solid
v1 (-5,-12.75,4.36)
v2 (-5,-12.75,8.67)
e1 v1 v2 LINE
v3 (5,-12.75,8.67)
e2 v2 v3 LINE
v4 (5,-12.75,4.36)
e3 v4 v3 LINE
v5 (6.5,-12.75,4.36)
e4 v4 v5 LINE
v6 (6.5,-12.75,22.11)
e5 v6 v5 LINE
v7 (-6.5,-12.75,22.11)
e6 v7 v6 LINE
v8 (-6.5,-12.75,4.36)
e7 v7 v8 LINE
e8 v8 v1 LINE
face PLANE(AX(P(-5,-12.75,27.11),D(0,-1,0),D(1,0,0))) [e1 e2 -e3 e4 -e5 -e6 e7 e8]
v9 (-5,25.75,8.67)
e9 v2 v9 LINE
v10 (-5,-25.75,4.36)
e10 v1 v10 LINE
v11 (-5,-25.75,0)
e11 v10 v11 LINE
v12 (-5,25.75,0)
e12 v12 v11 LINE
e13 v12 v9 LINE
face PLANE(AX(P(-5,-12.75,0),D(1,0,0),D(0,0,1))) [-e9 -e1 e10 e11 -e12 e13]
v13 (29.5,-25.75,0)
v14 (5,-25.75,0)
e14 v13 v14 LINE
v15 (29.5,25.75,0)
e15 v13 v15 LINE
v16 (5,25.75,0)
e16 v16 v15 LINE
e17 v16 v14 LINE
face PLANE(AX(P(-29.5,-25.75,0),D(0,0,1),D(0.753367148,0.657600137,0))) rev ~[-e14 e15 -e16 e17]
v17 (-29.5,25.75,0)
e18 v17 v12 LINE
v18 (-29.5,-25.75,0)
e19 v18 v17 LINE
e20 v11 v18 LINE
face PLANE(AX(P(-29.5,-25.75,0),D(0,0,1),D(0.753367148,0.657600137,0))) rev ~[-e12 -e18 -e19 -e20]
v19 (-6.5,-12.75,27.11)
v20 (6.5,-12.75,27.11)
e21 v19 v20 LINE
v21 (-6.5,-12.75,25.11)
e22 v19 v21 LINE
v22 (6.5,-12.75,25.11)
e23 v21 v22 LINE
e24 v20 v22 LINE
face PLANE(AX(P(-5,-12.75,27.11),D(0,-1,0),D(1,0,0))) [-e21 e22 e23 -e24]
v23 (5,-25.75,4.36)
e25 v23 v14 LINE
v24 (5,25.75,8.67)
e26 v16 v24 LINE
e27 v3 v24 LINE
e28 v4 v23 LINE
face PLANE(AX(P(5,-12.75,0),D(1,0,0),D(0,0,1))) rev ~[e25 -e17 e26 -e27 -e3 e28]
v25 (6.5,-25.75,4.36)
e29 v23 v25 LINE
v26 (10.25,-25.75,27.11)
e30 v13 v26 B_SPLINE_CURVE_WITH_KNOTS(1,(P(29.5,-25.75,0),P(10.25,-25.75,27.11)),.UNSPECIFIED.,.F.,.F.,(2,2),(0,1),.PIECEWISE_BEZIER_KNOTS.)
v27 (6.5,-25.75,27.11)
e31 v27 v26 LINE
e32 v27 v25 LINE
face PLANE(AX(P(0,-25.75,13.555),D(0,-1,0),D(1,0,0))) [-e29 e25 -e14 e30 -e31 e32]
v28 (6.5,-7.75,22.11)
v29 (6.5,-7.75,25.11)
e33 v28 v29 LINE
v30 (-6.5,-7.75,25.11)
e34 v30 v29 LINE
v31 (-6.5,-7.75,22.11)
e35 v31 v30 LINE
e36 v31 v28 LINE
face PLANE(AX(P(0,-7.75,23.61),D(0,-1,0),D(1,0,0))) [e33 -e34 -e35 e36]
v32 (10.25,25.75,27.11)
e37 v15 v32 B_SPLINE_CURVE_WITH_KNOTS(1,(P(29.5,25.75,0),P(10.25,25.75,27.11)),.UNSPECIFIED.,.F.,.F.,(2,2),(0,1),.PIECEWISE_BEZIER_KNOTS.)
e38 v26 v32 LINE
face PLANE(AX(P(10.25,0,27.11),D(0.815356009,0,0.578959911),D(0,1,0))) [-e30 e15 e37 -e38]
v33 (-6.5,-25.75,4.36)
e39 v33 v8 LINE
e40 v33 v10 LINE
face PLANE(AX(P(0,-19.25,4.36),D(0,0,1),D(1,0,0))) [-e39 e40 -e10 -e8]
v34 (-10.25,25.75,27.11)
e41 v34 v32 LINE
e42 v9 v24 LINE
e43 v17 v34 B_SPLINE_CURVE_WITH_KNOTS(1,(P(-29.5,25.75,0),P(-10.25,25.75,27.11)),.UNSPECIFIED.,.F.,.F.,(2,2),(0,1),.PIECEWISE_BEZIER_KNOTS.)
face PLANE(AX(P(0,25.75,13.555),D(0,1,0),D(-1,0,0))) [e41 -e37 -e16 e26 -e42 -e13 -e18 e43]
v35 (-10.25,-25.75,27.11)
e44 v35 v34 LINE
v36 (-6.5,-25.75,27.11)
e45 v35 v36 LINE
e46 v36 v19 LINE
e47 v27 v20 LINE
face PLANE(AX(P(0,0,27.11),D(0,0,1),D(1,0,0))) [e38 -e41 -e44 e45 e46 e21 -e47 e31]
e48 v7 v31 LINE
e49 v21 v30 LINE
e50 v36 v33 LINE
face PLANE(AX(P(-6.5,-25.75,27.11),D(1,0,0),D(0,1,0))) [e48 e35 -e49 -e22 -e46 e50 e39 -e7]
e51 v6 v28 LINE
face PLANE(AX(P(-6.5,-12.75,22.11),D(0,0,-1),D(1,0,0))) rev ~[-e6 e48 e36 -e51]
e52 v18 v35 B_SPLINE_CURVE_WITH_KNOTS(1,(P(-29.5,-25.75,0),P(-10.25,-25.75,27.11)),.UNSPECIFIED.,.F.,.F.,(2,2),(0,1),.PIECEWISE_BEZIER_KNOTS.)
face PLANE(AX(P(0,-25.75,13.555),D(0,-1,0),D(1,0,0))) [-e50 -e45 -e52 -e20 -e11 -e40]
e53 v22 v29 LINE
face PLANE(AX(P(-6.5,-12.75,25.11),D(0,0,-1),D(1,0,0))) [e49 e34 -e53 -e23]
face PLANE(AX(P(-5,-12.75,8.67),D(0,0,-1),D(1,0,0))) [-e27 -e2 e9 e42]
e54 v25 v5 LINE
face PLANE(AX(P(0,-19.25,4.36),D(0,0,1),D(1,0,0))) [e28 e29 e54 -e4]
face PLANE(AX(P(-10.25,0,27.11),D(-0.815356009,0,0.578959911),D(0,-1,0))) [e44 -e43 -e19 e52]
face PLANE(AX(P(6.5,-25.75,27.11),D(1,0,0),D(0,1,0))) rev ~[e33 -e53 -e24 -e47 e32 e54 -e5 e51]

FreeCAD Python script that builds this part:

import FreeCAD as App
import Part
import Sketcher

V = App.Vector

doc = App.newDocument("Part")
body = doc.addObject("PartDesign::Body", "Body")

sketch1 = body.newObject("Sketcher::SketchObject", "Sketch")
sketch1.AttachmentSupport = (doc.getObject("XY_Plane"), [""])
sketch1.MapMode = "FlatFace"
sketch1.addGeometry([
    Part.LineSegment(V(-10.25, 25.75, 0), V(-10.25, -25.75, 0)),
    Part.LineSegment(V(-10.25, -25.75, 0), V(10.25, -25.75, 0)),
    Part.LineSegment(V(10.25, -25.75, 0), V(10.25, 25.75, 0)),
    Part.LineSegment(V(10.25, 25.75, 0), V(-10.25, 25.75, 0)),
], False)
sketch1.addConstraint([
    Sketcher.Constraint("Coincident", 0, 2, 1, 1),
    Sketcher.Constraint("Coincident", 1, 2, 2, 1),
    Sketcher.Constraint("Coincident", 2, 2, 3, 1),
    Sketcher.Constraint("Coincident", 3, 2, 0, 1),
    Sketcher.Constraint("Vertical", 0),
    Sketcher.Constraint("Horizontal", 1),
    Sketcher.Constraint("Vertical", 2),
    Sketcher.Constraint("Horizontal", 3),
    Sketcher.Constraint("Symmetric", 0, 2, 2, 2, -1, 1),
    Sketcher.Constraint("DistanceX", 1, 1, 1, 2, 20.5),
    Sketcher.Constraint("DistanceY", 0, 2, 0, 1, 51.5),
])
pad1 = body.newObject("PartDesign::Pad", "Pad")
pad1.Profile = sketch1
pad1.Length = 27.11

sketch2 = body.newObject("Sketcher::SketchObject", "Sketch001")
sketch2.AttachmentSupport = (doc.getObject("XY_Plane"), [""])
sketch2.MapMode = "FlatFace"
sketch2.addGeometry([
    Part.LineSegment(V(-29.5, 25.75, 0), V(-29.5, -25.75, 0)),
    Part.LineSegment(V(-29.5, -25.75, 0), V(29.5, -25.75, 0)),
    Part.LineSegment(V(29.5, -25.75, 0), V(29.5, 25.75, 0)),
    Part.LineSegment(V(29.5, 25.75, 0), V(-29.5, 25.75, 0)),
], False)
sketch2.addConstraint([
    Sketcher.Constraint("Coincident", 0, 2, 1, 1),
    Sketcher.Constraint("Coincident", 1, 2, 2, 1),
    Sketcher.Constraint("Coincident", 2, 2, 3, 1),
    Sketcher.Constraint("Coincident", 3, 2, 0, 1),
    Sketcher.Constraint("Vertical", 0),
    Sketcher.Constraint("Horizontal", 1),
    Sketcher.Constraint("Vertical", 2),
    Sketcher.Constraint("Horizontal", 3),
    Sketcher.Constraint("Symmetric", 0, 2, 2, 2, -1, 1),
    Sketcher.Constraint("DistanceX", 1, 1, 1, 2, 59.0),
    Sketcher.Constraint("DistanceY", 0, 2, 0, 1, 51.5),
])

sketch3 = body.newObject("Sketcher::SketchObject", "Sketch002")
sketch3.AttachmentSupport = (doc.getObject("XY_Plane"), [""])
sketch3.MapMode = "FlatFace"
sketch3.AttachmentOffset = App.Placement(V(0, 0, 27.11), App.Rotation())
sketch3.addGeometry([
    Part.LineSegment(V(-10.25, 25.75, 0), V(-10.25, -25.75, 0)),
    Part.LineSegment(V(-10.25, -25.75, 0), V(10.25, -25.75, 0)),
    Part.LineSegment(V(10.25, -25.75, 0), V(10.25, 25.75, 0)),
    Part.LineSegment(V(10.25, 25.75, 0), V(-10.25, 25.75, 0)),
], False)
sketch3.addConstraint([
    Sketcher.Constraint("Coincident", 0, 2, 1, 1),
    Sketcher.Constraint("Coincident", 1, 2, 2, 1),
    Sketcher.Constraint("Coincident", 2, 2, 3, 1),
    Sketcher.Constraint("Coincident", 3, 2, 0, 1),
    Sketcher.Constraint("Vertical", 0),
    Sketcher.Constraint("Horizontal", 1),
    Sketcher.Constraint("Vertical", 2),
    Sketcher.Constraint("Horizontal", 3),
    Sketcher.Constraint("Symmetric", 0, 2, 2, 2, -1, 1),
    Sketcher.Constraint("DistanceX", 1, 1, 1, 2, 20.5),
    Sketcher.Constraint("DistanceY", 0, 2, 0, 1, 51.5),
])

additiveloft = body.newObject("PartDesign::AdditiveLoft", "AdditiveLoft")
additiveloft.Profile = sketch2
additiveloft.Sections = [sketch3]

sketch4 = body.newObject("Sketcher::SketchObject", "Sketch003")
sketch4.AttachmentSupport = (doc.getObject("XY_Plane"), [""])
sketch4.MapMode = "FlatFace"
sketch4.AttachmentOffset = App.Placement(V(0, 0, 27.11), App.Rotation())
sketch4.addGeometry([
    Part.LineSegment(V(-5, -12.75, 0), V(-5, -25.75, 0)),
    Part.LineSegment(V(-5, -25.75, 0), V(5, -25.75, 0)),
    Part.LineSegment(V(5, -25.75, 0), V(5, -12.75, 0)),
    Part.LineSegment(V(5, -12.75, 0), V(-5, -12.75, 0)),
], False)
sketch4.addConstraint([
    Sketcher.Constraint("Coincident", 0, 2, 1, 1),
    Sketcher.Constraint("Coincident", 1, 2, 2, 1),
    Sketcher.Constraint("Coincident", 2, 2, 3, 1),
    Sketcher.Constraint("Coincident", 3, 2, 0, 1),
    Sketcher.Constraint("Vertical", 0),
    Sketcher.Constraint("Horizontal", 1),
    Sketcher.Constraint("Vertical", 2),
    Sketcher.Constraint("Horizontal", 3),
    Sketcher.Constraint("DistanceX", 1, 1, 1, 2, 10.0),
    Sketcher.Constraint("DistanceY", 0, 2, 0, 1, 13.0),
    Sketcher.Constraint("DistanceX", 0, 2, -1, 1, 5.0),
    Sketcher.Constraint("DistanceY", 0, 2, -1, 1, 25.75),
])
pocket1 = body.newObject("PartDesign::Pocket", "Pocket")
pocket1.Profile = sketch4
pocket1.Type = "ThroughAll"

sketch5 = body.newObject("Sketcher::SketchObject", "Sketch004")
sketch5.AttachmentSupport = (doc.getObject("XY_Plane"), [""])
sketch5.MapMode = "FlatFace"
sketch5.AttachmentOffset = App.Placement(V(0, 0, 27.11), App.Rotation())
sketch5.addGeometry([
    Part.LineSegment(V(-6.5, -12.75, 0), V(-6.5, -25.75, 0)),
    Part.LineSegment(V(-6.5, -25.75, 0), V(6.5, -25.75, 0)),
    Part.LineSegment(V(6.5, -25.75, 0), V(6.5, -12.75, 0)),
    Part.LineSegment(V(6.5, -12.75, 0), V(-6.5, -12.75, 0)),
], False)
sketch5.addConstraint([
    Sketcher.Constraint("Coincident", 0, 2, 1, 1),
    Sketcher.Constraint("Coincident", 1, 2, 2, 1),
    Sketcher.Constraint("Coincident", 2, 2, 3, 1),
    Sketcher.Constraint("Coincident", 3, 2, 0, 1),
    Sketcher.Constraint("Vertical", 0),
    Sketcher.Constraint("Horizontal", 1),
    Sketcher.Constraint("Vertical", 2),
    Sketcher.Constraint("Horizontal", 3),
    Sketcher.Constraint("Equal", 3, 0),
    Sketcher.Constraint("DistanceX", 1, 1, 1, 2, 13.0),
    Sketcher.Constraint("DistanceX", 0, 2, -1, 1, 6.5),
    Sketcher.Constraint("DistanceY", 0, 2, -1, 1, 25.75),
])
pocket2 = body.newObject("PartDesign::Pocket", "Pocket001")
pocket2.Profile = sketch5
pocket2.Length = 22.75

sketch6 = body.newObject("Sketcher::SketchObject", "Sketch005")
sketch6.AttachmentSupport = (doc.getObject("XZ_Plane"), [""])
sketch6.MapMode = "FlatFace"
sketch6.AttachmentOffset = App.Placement(V(0, 0, 12.75), App.Rotation())
sketch6.addGeometry([
    Part.LineSegment(V(-5, 8.67, 0), V(-5, 0, 0)),
    Part.LineSegment(V(-5, 0, 0), V(5, 0, 0)),
    Part.LineSegment(V(5, 0, 0), V(5, 8.67, 0)),
    Part.LineSegment(V(5, 8.67, 0), V(-5, 8.67, 0)),
], False)
sketch6.addConstraint([
    Sketcher.Constraint("Coincident", 0, 2, 1, 1),
    Sketcher.Constraint("Coincident", 1, 2, 2, 1),
    Sketcher.Constraint("Coincident", 2, 2, 3, 1),
    Sketcher.Constraint("Coincident", 3, 2, 0, 1),
    Sketcher.Constraint("Vertical", 0),
    Sketcher.Constraint("Horizontal", 1),
    Sketcher.Constraint("Vertical", 2),
    Sketcher.Constraint("Horizontal", 3),
    Sketcher.Constraint("Symmetric", 0, 2, 1, 2, -1, 1),
    Sketcher.Constraint("DistanceX", 1, 1, 1, 2, 10.0),
    Sketcher.Constraint("DistanceY", 0, 2, 0, 1, 8.67),
])
pocket3 = body.newObject("PartDesign::Pocket", "Pocket002")
pocket3.Profile = sketch6
pocket3.Type = "ThroughAll"

sketch7 = body.newObject("Sketcher::SketchObject", "Sketch006")
sketch7.AttachmentSupport = (doc.getObject("XZ_Plane"), [""])
sketch7.MapMode = "FlatFace"
sketch7.AttachmentOffset = App.Placement(V(0, 0, 12.75), App.Rotation())
sketch7.addGeometry([
    Part.LineSegment(V(-6.5, 25.11, 0), V(-6.5, 22.11, 0)),
    Part.LineSegment(V(-6.5, 22.11, 0), V(6.5, 22.11, 0)),
    Part.LineSegment(V(6.5, 22.11, 0), V(6.5, 25.11, 0)),
    Part.LineSegment(V(6.5, 25.11, 0), V(-6.5, 25.11, 0)),
], False)
sketch7.addConstraint([
    Sketcher.Constraint("Coincident", 0, 2, 1, 1),
    Sketcher.Constraint("Coincident", 1, 2, 2, 1),
    Sketcher.Constraint("Coincident", 2, 2, 3, 1),
    Sketcher.Constraint("Coincident", 3, 2, 0, 1),
    Sketcher.Constraint("Vertical", 0),
    Sketcher.Constraint("Horizontal", 1),
    Sketcher.Constraint("Vertical", 2),
    Sketcher.Constraint("Horizontal", 3),
    Sketcher.Constraint("DistanceX", 1, 1, 1, 2, 13.0),
    Sketcher.Constraint("DistanceY", 0, 2, 0, 1, 3.0),
    Sketcher.Constraint("DistanceX", 0, 2, -1, 1, 6.5),
    Sketcher.Constraint("DistanceY", -1, 1, 0, 2, 22.11),
])
pocket4 = body.newObject("PartDesign::Pocket", "Pocket003")
pocket4.Profile = sketch7
pocket4.Length = 5

doc.recompute()
